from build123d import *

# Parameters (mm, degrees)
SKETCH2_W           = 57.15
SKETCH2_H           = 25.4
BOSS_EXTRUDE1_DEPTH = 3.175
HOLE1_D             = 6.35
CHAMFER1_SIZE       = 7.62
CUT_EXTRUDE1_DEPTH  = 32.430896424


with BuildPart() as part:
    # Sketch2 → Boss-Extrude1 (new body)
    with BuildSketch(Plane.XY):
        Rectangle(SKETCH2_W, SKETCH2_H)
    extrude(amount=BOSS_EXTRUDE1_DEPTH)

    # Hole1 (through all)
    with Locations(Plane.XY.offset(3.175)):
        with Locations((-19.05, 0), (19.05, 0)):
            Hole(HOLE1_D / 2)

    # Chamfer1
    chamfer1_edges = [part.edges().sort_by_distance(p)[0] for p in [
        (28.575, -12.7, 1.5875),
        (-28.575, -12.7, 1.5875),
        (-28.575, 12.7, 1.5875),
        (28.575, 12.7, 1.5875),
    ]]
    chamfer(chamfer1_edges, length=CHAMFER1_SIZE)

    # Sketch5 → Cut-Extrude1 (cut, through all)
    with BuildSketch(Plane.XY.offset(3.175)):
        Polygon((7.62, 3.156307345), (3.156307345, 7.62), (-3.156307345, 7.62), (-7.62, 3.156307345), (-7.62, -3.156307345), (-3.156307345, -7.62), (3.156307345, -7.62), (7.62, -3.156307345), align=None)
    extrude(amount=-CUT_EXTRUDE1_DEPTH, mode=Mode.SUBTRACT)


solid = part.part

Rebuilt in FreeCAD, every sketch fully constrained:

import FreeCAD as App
import Part
import Sketcher
from FreeCAD import Vector
Q = App.Units.Quantity


def edges_at(feature, points):
    """Names of the edges that pass closest to the given points."""
    edges = feature.Shape.Edges
    near = lambda p: min(range(len(edges)), key=lambda i: edges[i].distToShape(Part.Vertex(*p))[0])
    return sorted({f"Edge{near(p) + 1}" for p in points})

doc = App.newDocument("Part")
body = doc.addObject("PartDesign::Body", "Body")

# Sketch on XY plane
sketch1 = body.newObject("Sketcher::SketchObject", "Sketch")
sketch1.AttachmentSupport = (doc.getObject("XY_Plane"), [""])
sketch1.MapMode = "FlatFace"
sketch1.addGeometry([
    Part.LineSegment(Vector(-28.575, 12.7, 0), Vector(-28.575, -12.7, 0)),
    Part.LineSegment(Vector(-28.575, -12.7, 0), Vector(28.575, -12.7, 0)),
    Part.LineSegment(Vector(28.575, -12.7, 0), Vector(28.575, 12.7, 0)),
    Part.LineSegment(Vector(28.575, 12.7, 0), Vector(-28.575, 12.7, 0)),
], False)
sketch1.addConstraint([
    Sketcher.Constraint("Coincident", 0, 2, 1, 1),
    Sketcher.Constraint("Coincident", 1, 2, 2, 1),
    Sketcher.Constraint("Coincident", 2, 2, 3, 1),
    Sketcher.Constraint("Coincident", 3, 2, 0, 1),
    Sketcher.Constraint("Vertical", 0),
    Sketcher.Constraint("Horizontal", 1),
    Sketcher.Constraint("Vertical", 2),
    Sketcher.Constraint("Horizontal", 3),
    Sketcher.Constraint("Symmetric", 0, 2, 2, 2, -1, 1),
    Sketcher.Constraint("DistanceY", 0, 2, 0, 1, Q("1 in")),
    Sketcher.Constraint("DistanceX", 1, 1, 1, 2, Q("2.25 in")),
])
pad1 = body.newObject("PartDesign::Pad", "Pad")
pad1.Profile = sketch1
pad1.Length = Q("0.125 in")

# Sketch on XY plane
sketch2 = body.newObject("Sketcher::SketchObject", "Sketch001")
sketch2.AttachmentSupport = (doc.getObject("XY_Plane"), [""])
sketch2.MapMode = "FlatFace"
sketch2.AttachmentOffset = App.Placement(Vector(0, 0, 0.125 * 25.4), App.Rotation())
sketch2.addGeometry([
    Part.Circle(Vector(-19.05, 0, 0), Vector(0, 0, 1), 3.175),
    Part.Circle(Vector(19.05, 0, 0), Vector(0, 0, 1), 3.175),
], False)
sketch2.addConstraint([
    Sketcher.Constraint("Equal", 0, 1),
    Sketcher.Constraint("Symmetric", 0, 3, 1, 3, -1, 1),
    Sketcher.Constraint("PointOnObject", 0, 3, -1),
    Sketcher.Constraint("Diameter", 0, Q("0.25 in")),
    Sketcher.Constraint("DistanceX", 0, 3, 1, 3, Q("1.5 in")),
])
doc.recompute()
hole = body.newObject("PartDesign::Hole", "Hole")
hole.Profile = sketch2
hole.ThreadType = "None"
hole.Diameter = Q("0.25 in")
hole.DepthType = "ThroughAll"
doc.recompute()

chamfer = body.newObject("PartDesign::Chamfer", "Chamfer")
chamfer.Base = (hole, edges_at(hole, [
    (28.575, -12.7, 1.587),
    (-28.575, -12.7, 1.587),
    (-28.575, 12.7, 1.587),
    (28.575, 12.7, 1.587),
]))
chamfer.Size = Q("0.3 in")

# Sketch on XY plane
sketch3 = body.newObject("Sketcher::SketchObject", "Sketch002")
sketch3.AttachmentSupport = (doc.getObject("XY_Plane"), [""])
sketch3.MapMode = "FlatFace"
sketch3.AttachmentOffset = App.Placement(Vector(0, 0, 0.125 * 25.4), App.Rotation())
sketch3.addGeometry([
    Part.LineSegment(Vector(7.62, 3.156307, 0), Vector(3.156307, 7.62, 0)),  # 0
    Part.LineSegment(Vector(3.156307, 7.62, 0), Vector(-3.156307, 7.62, 0)),  # 1
    Part.LineSegment(Vector(-3.156307, 7.62, 0), Vector(-7.62, 3.156307, 0)),  # 2
    Part.LineSegment(Vector(-7.62, 3.156307, 0), Vector(-7.62, -3.156307, 0)),  # 3
    Part.LineSegment(Vector(-7.62, -3.156307, 0), Vector(-3.156307, -7.62, 0)),  # 4
    Part.LineSegment(Vector(-3.156307, -7.62, 0), Vector(3.156307, -7.62, 0)),  # 5
    Part.LineSegment(Vector(3.156307, -7.62, 0), Vector(7.62, -3.156307, 0)),  # 6
    Part.LineSegment(Vector(7.62, -3.156307, 0), Vector(7.62, 3.156307, 0)),  # 7
], False)
sketch3.addConstraint([
    Sketcher.Constraint("Coincident", 0, 2, 1, 1),
    Sketcher.Constraint("Coincident", 1, 2, 2, 1),
    Sketcher.Constraint("Coincident", 2, 2, 3, 1),
    Sketcher.Constraint("Coincident", 3, 2, 4, 1),
    Sketcher.Constraint("Coincident", 4, 2, 5, 1),
    Sketcher.Constraint("Coincident", 5, 2, 6, 1),
    Sketcher.Constraint("Coincident", 6, 2, 7, 1),
    Sketcher.Constraint("Coincident", 7, 2, 0, 1),
    Sketcher.Constraint("Horizontal", 1),
    Sketcher.Constraint("Vertical", 3),
    Sketcher.Constraint("Horizontal", 5),
    Sketcher.Constraint("Vertical", 7),
    Sketcher.Constraint("Symmetric", 0, 2, 4, 2, -1, 1),
    Sketcher.Constraint("Symmetric", 2, 2, 6, 2, -1, 1),
    Sketcher.Constraint("Perpendicular", 0, 2),
    Sketcher.Constraint("Perpendicular", 2, 4),
    Sketcher.Constraint("Perpendicular", 4, 6),
    Sketcher.Constraint("Horizontal", 3, 2, 6, 2),
    Sketcher.Constraint("Vertical", 1, 2, 4, 2),
    Sketcher.Constraint("Equal", 5, 3),
    Sketcher.Constraint("DistanceY", -1, 1, 0, 2, Q("0.3 in")),
    Sketcher.Constraint("DistanceX", 1, 2, 1, 1, Q("6.312615 mm")),
])
pocket1 = body.newObject("PartDesign::Pocket", "Pocket")
pocket1.Profile = sketch3
pocket1.Type = "ThroughAll"

doc.recompute()
